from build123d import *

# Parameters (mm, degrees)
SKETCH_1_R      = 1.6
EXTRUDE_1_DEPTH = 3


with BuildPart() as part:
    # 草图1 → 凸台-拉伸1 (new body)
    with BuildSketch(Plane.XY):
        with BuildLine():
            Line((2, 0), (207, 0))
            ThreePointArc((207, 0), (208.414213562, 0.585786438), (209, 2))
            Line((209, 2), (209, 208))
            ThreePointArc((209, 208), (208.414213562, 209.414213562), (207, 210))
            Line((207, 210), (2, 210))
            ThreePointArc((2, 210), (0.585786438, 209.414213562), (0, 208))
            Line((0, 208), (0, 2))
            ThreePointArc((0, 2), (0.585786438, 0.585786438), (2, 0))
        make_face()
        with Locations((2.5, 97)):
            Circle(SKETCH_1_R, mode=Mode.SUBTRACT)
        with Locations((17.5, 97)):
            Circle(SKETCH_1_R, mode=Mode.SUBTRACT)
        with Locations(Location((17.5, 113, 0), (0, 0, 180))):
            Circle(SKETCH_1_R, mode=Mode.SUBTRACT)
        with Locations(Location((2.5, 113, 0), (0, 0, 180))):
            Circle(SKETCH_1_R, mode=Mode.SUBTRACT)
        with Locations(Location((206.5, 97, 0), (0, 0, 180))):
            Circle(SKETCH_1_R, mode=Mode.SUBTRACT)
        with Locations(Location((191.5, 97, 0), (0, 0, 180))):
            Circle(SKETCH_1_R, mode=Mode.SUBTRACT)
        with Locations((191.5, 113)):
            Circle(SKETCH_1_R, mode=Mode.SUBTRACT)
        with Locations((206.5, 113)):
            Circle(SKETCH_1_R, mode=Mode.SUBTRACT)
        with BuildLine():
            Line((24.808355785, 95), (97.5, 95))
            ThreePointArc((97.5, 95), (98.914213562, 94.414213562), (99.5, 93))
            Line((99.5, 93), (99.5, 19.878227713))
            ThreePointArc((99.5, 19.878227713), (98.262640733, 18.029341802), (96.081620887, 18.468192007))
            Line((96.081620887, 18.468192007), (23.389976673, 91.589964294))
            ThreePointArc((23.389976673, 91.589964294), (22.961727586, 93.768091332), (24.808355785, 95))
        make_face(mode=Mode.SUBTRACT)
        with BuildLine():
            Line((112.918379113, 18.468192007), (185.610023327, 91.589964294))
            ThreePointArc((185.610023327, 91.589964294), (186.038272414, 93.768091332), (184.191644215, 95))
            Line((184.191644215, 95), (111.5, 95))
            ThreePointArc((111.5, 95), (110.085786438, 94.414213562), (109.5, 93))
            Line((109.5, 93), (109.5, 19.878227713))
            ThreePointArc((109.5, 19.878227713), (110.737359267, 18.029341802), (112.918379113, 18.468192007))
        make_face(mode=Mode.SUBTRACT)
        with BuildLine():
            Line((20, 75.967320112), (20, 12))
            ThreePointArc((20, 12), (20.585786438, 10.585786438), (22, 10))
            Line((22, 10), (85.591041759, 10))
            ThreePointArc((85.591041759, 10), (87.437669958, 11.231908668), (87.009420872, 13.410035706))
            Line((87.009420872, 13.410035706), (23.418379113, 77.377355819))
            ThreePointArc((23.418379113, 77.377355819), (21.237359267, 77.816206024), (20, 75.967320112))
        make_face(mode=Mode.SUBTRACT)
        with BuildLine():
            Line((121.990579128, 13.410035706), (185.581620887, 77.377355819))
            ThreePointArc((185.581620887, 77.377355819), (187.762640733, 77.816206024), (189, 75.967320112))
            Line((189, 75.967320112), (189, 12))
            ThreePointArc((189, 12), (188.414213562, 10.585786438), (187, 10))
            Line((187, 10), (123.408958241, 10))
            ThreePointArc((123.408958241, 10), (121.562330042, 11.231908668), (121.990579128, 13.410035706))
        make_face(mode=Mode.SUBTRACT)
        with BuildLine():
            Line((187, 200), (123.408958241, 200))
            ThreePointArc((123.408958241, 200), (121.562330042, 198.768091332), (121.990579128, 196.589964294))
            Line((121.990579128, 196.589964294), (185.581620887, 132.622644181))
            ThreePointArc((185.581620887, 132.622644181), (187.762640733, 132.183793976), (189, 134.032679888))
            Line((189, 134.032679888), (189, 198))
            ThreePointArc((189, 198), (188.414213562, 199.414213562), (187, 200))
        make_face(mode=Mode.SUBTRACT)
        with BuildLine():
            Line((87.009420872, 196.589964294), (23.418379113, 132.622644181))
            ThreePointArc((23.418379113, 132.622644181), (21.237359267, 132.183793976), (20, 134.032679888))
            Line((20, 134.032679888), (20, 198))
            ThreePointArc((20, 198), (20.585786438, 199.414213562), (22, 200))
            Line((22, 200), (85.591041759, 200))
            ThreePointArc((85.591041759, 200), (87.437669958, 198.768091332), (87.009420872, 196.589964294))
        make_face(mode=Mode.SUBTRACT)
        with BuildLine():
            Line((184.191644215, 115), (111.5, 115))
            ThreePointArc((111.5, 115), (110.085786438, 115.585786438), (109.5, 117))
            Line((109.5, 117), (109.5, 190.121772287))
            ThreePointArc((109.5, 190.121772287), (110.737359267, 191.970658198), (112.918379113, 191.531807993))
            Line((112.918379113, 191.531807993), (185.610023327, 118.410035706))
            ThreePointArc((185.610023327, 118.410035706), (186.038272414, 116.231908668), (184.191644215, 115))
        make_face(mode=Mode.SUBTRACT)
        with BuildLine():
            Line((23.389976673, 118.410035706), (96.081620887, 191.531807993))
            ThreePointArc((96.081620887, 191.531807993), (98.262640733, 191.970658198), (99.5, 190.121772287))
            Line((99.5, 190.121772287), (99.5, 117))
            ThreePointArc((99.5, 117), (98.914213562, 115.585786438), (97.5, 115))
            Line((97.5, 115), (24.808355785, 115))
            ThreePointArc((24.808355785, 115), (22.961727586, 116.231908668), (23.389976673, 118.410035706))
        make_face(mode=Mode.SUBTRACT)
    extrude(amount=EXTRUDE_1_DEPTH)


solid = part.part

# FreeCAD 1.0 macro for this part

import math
import FreeCAD as App
import Part
import Sketcher

doc = App.newDocument("Part")
body = doc.addObject("PartDesign::Body", "Body")

# Sketch on XY plane
sketch1 = body.newObject("Sketcher::SketchObject", "Sketch")
sketch1.AttachmentSupport = (doc.getObject("XY_Plane"), [""])
sketch1.MapMode = "FlatFace"
sketch1.addGeometry([
    Part.LineSegment(App.Vector(2, 0, 0), App.Vector(207, 0, 0)),  # 0
    Part.ArcOfCircle(Part.Circle(App.Vector(207, 2, 0), App.Vector(0, 0, 1), 2), math.radians(-90), math.radians(0)),  # 1
    Part.LineSegment(App.Vector(209, 2, 0), App.Vector(209, 208, 0)),  # 2
    Part.ArcOfCircle(Part.Circle(App.Vector(207, 208, 0), App.Vector(0, 0, 1), 2), math.radians(0), math.radians(90)),  # 3
    Part.LineSegment(App.Vector(207, 210, 0), App.Vector(2, 210, 0)),  # 4
    Part.ArcOfCircle(Part.Circle(App.Vector(2, 208, 0), App.Vector(0, 0, 1), 2), math.radians(90), math.radians(180)),  # 5
    Part.LineSegment(App.Vector(0, 208, 0), App.Vector(0, 2, 0)),  # 6
    Part.ArcOfCircle(Part.Circle(App.Vector(2, 2, 0), App.Vector(0, 0, 1), 2), math.radians(-180), math.radians(-90)),  # 7
    Part.LineSegment(App.Vector(20, 12, 0), App.Vector(20, 75.96732, 0)),  # 8
    Part.ArcOfCircle(Part.Circle(App.Vector(22, 75.96732, 0), App.Vector(0, 0, 1), 2), math.radians(44.830986), math.radians(180)),  # 9
    Part.LineSegment(App.Vector(23.418379, 77.377356, 0), App.Vector(87.009421, 13.410036, 0)),  # 10
    Part.ArcOfCircle(Part.Circle(App.Vector(85.591042, 12, 0), App.Vector(0, 0, 1), 2), math.radians(-90), math.radians(44.830986)),  # 11
    Part.LineSegment(App.Vector(85.591042, 10, 0), App.Vector(22, 10, 0)),  # 12
    Part.ArcOfCircle(Part.Circle(App.Vector(22, 12, 0), App.Vector(0, 0, 1), 2), math.radians(-180), math.radians(-90)),  # 13
    Part.ArcOfCircle(Part.Circle(App.Vector(24.808356, 93, 0), App.Vector(0, 0, 1), 2), math.radians(90), math.radians(224.830986)),  # 14
    Part.LineSegment(App.Vector(24.808356, 95, 0), App.Vector(97.5, 95, 0)),  # 15
    Part.ArcOfCircle(Part.Circle(App.Vector(97.5, 93, 0), App.Vector(0, 0, 1), 2), math.radians(0), math.radians(90)),  # 16
    Part.LineSegment(App.Vector(99.5, 93, 0), App.Vector(99.5, 19.878228, 0)),  # 17
    Part.ArcOfCircle(Part.Circle(App.Vector(97.5, 19.878228, 0), App.Vector(0, 0, 1), 2), math.radians(-135.169014), math.radians(0)),  # 18
    Part.LineSegment(App.Vector(96.081621, 18.468192, 0), App.Vector(23.389977, 91.589964, 0)),  # 19
    Part.Circle(App.Vector(2.5, 97, 0), App.Vector(0, 0, 1), 1.6),  # 20
    Part.Circle(App.Vector(17.5, 97, 0), App.Vector(0, 0, 1), 1.6),  # 21
    Part.ArcOfCircle(Part.Circle(App.Vector(123.408958, 12, 0), App.Vector(0, 0, 1), 2), math.radians(135.169014), math.radians(270)),  # 22
    Part.LineSegment(App.Vector(121.990579, 13.410036, 0), App.Vector(185.581621, 77.377356, 0)),  # 23
    Part.ArcOfCircle(Part.Circle(App.Vector(187, 75.96732, 0), App.Vector(0, 0, 1), 2), math.radians(0), math.radians(135.169014)),  # 24
    Part.LineSegment(App.Vector(189, 75.96732, 0), App.Vector(189, 12, 0)),  # 25
    Part.ArcOfCircle(Part.Circle(App.Vector(187, 12, 0), App.Vector(0, 0, 1), 2), math.radians(-90), math.radians(0)),  # 26
    Part.LineSegment(App.Vector(187, 10, 0), App.Vector(123.408958, 10, 0)),  # 27
    Part.LineSegment(App.Vector(185.610023, 91.589964, 0), App.Vector(112.918379, 18.468192, 0)),  # 28
    Part.ArcOfCircle(Part.Circle(App.Vector(111.5, 19.878228, 0), App.Vector(0, 0, 1), 2), math.radians(180), math.radians(315.169014)),  # 29
    Part.LineSegment(App.Vector(109.5, 19.878228, 0), App.Vector(109.5, 93, 0)),  # 30
    Part.ArcOfCircle(Part.Circle(App.Vector(111.5, 93, 0), App.Vector(0, 0, 1), 2), math.radians(90), math.radians(180)),  # 31
    Part.LineSegment(App.Vector(111.5, 95, 0), App.Vector(184.191644, 95, 0)),  # 32
    Part.ArcOfCircle(Part.Circle(App.Vector(184.191644, 93, 0), App.Vector(0, 0, 1), 2), math.radians(-44.830986), math.radians(90)),  # 33
    Part.Circle(App.Vector(191.5, 97, 0), App.Vector(0, 0, 1), 1.6),  # 34
    Part.Circle(App.Vector(206.5, 97, 0), App.Vector(0, 0, 1), 1.6),  # 35
    Part.Circle(App.Vector(2.5, 113, 0), App.Vector(0, 0, 1), 1.6),  # 36
    Part.Circle(App.Vector(17.5, 113, 0), App.Vector(0, 0, 1), 1.6),  # 37
    Part.ArcOfCircle(Part.Circle(App.Vector(24.808356, 117, 0), App.Vector(0, 0, 1), 2), math.radians(135.169014), math.radians(270)),  # 38
    Part.LineSegment(App.Vector(23.389977, 118.410036, 0), App.Vector(96.081621, 191.531808, 0)),  # 39
    Part.ArcOfCircle(Part.Circle(App.Vector(97.5, 190.121772, 0), App.Vector(0, 0, 1), 2), math.radians(0), math.radians(135.169014)),  # 40
    Part.LineSegment(App.Vector(99.5, 190.121772, 0), App.Vector(99.5, 117, 0)),  # 41
    Part.ArcOfCircle(Part.Circle(App.Vector(97.5, 117, 0), App.Vector(0, 0, 1), 2), math.radians(-90), math.radians(0)),  # 42
    Part.LineSegment(App.Vector(97.5, 115, 0), App.Vector(24.808356, 115, 0)),  # 43
    Part.ArcOfCircle(Part.Circle(App.Vector(85.591042, 198, 0), App.Vector(0, 0, 1), 2), math.radians(-44.830986), math.radians(90)),  # 44
    Part.LineSegment(App.Vector(87.009421, 196.589964, 0), App.Vector(23.418379, 132.622644, 0)),  # 45
    Part.ArcOfCircle(Part.Circle(App.Vector(22, 134.03268, 0), App.Vector(0, 0, 1), 2), math.radians(180), math.radians(315.169014)),  # 46
    Part.LineSegment(App.Vector(20, 134.03268, 0), App.Vector(20, 198, 0)),  # 47
    Part.ArcOfCircle(Part.Circle(App.Vector(22, 198, 0), App.Vector(0, 0, 1), 2), math.radians(90), math.radians(180)),  # 48
    Part.LineSegment(App.Vector(22, 200, 0), App.Vector(85.591042, 200, 0)),  # 49
    Part.Circle(App.Vector(191.5, 113, 0), App.Vector(0, 0, 1), 1.6),  # 50
    Part.Circle(App.Vector(206.5, 113, 0), App.Vector(0, 0, 1), 1.6),  # 51
    Part.ArcOfCircle(Part.Circle(App.Vector(184.191644, 117, 0), App.Vector(0, 0, 1), 2), math.radians(-90), math.radians(44.830986)),  # 52
    Part.LineSegment(App.Vector(184.191644, 115, 0), App.Vector(111.5, 115, 0)),  # 53
    Part.ArcOfCircle(Part.Circle(App.Vector(111.5, 117, 0), App.Vector(0, 0, 1), 2), math.radians(-180), math.radians(-90)),  # 54
    Part.LineSegment(App.Vector(109.5, 117, 0), App.Vector(109.5, 190.121772, 0)),  # 55
    Part.ArcOfCircle(Part.Circle(App.Vector(111.5, 190.121772, 0), App.Vector(0, 0, 1), 2), math.radians(44.830986), math.radians(180)),  # 56
    Part.LineSegment(App.Vector(112.918379, 191.531808, 0), App.Vector(185.610023, 118.410036, 0)),  # 57
    Part.LineSegment(App.Vector(123.408958, 200, 0), App.Vector(187, 200, 0)),  # 58
    Part.ArcOfCircle(Part.Circle(App.Vector(187, 198, 0), App.Vector(0, 0, 1), 2), math.radians(0), math.radians(90)),  # 59
    Part.LineSegment(App.Vector(189, 198, 0), App.Vector(189, 134.03268, 0)),  # 60
    Part.ArcOfCircle(Part.Circle(App.Vector(187, 134.03268, 0), App.Vector(0, 0, 1), 2), math.radians(-135.169014), math.radians(0)),  # 61
    Part.LineSegment(App.Vector(185.581621, 132.622644, 0), App.Vector(121.990579, 196.589964, 0)),  # 62
    Part.ArcOfCircle(Part.Circle(App.Vector(123.408958, 198, 0), App.Vector(0, 0, 1), 2), math.radians(90), math.radians(224.830986)),  # 63
], False)
sketch1.addConstraint([
    Sketcher.Constraint("Tangent", 0, 2, 1, 1),
    Sketcher.Constraint("Tangent", 1, 2, 2, 1),
    Sketcher.Constraint("Tangent", 2, 2, 3, 1),
    Sketcher.Constraint("Tangent", 3, 2, 4, 1),
    Sketcher.Constraint("Tangent", 4, 2, 5, 1),
    Sketcher.Constraint("Tangent", 5, 2, 6, 1),
    Sketcher.Constraint("Tangent", 6, 2, 7, 1),
    Sketcher.Constraint("Tangent", 7, 2, 0, 1),
    Sketcher.Constraint("Tangent", 8, 2, 9, 2),
    Sketcher.Constraint("Tangent", 9, 1, 10, 1),
    Sketcher.Constraint("Tangent", 10, 2, 11, 2),
    Sketcher.Constraint("Tangent", 11, 1, 12, 1),
    Sketcher.Constraint("Tangent", 12, 2, 13, 2),
    Sketcher.Constraint("Tangent", 13, 1, 8, 1),
    Sketcher.Constraint("Tangent", 14, 1, 15, 1),
    Sketcher.Constraint("Tangent", 15, 2, 16, 2),
    Sketcher.Constraint("Tangent", 16, 1, 17, 1),
    Sketcher.Constraint("Tangent", 17, 2, 18, 2),
    Sketcher.Constraint("Tangent", 18, 1, 19, 1),
    Sketcher.Constraint("Tangent", 19, 2, 14, 2),
    Sketcher.Constraint("Tangent", 22, 1, 23, 1),
    Sketcher.Constraint("Tangent", 23, 2, 24, 2),
    Sketcher.Constraint("Tangent", 24, 1, 25, 1),
    Sketcher.Constraint("Tangent", 25, 2, 26, 2),
    Sketcher.Constraint("Tangent", 26, 1, 27, 1),
    Sketcher.Constraint("Tangent", 27, 2, 22, 2),
    Sketcher.Constraint("Tangent", 28, 2, 29, 2),
    Sketcher.Constraint("Tangent", 29, 1, 30, 1),
    Sketcher.Constraint("Tangent", 30, 2, 31, 2),
    Sketcher.Constraint("Tangent", 31, 1, 32, 1),
    Sketcher.Constraint("Tangent", 32, 2, 33, 2),
    Sketcher.Constraint("Tangent", 33, 1, 28, 1),
    Sketcher.Constraint("Tangent", 38, 1, 39, 1),
    Sketcher.Constraint("Tangent", 39, 2, 40, 2),
    Sketcher.Constraint("Tangent", 40, 1, 41, 1),
    Sketcher.Constraint("Tangent", 41, 2, 42, 2),
    Sketcher.Constraint("Tangent", 42, 1, 43, 1),
    Sketcher.Constraint("Tangent", 43, 2, 38, 2),
    Sketcher.Constraint("Tangent", 44, 1, 45, 1),
    Sketcher.Constraint("Tangent", 45, 2, 46, 2),
    Sketcher.Constraint("Tangent", 46, 1, 47, 1),
    Sketcher.Constraint("Tangent", 47, 2, 48, 2),
    Sketcher.Constraint("Tangent", 48, 1, 49, 1),
    Sketcher.Constraint("Tangent", 49, 2, 44, 2),
    Sketcher.Constraint("Tangent", 52, 1, 53, 1),
    Sketcher.Constraint("Tangent", 53, 2, 54, 2),
    Sketcher.Constraint("Tangent", 54, 1, 55, 1),
    Sketcher.Constraint("Tangent", 55, 2, 56, 2),
    Sketcher.Constraint("Tangent", 56, 1, 57, 1),
    Sketcher.Constraint("Tangent", 57, 2, 52, 2),
    Sketcher.Constraint("Tangent", 58, 2, 59, 2),
    Sketcher.Constraint("Tangent", 59, 1, 60, 1),
    Sketcher.Constraint("Tangent", 60, 2, 61, 2),
    Sketcher.Constraint("Tangent", 61, 1, 62, 1),
    Sketcher.Constraint("Tangent", 62, 2, 63, 2),
    Sketcher.Constraint("Tangent", 63, 1, 58, 1),
    Sketcher.Constraint("Horizontal", 0),
    Sketcher.Constraint("Vertical", 2),
    Sketcher.Constraint("Horizontal", 4),
    Sketcher.Constraint("Vertical", 6),
    Sketcher.Constraint("Vertical", 8),
    Sketcher.Constraint("Horizontal", 12),
    Sketcher.Constraint("Horizontal", 15),
    Sketcher.Constraint("Vertical", 17),
    Sketcher.Constraint("Vertical", 25),
    Sketcher.Constraint("Horizontal", 27),
    Sketcher.Constraint("Vertical", 30),
    Sketcher.Constraint("Horizontal", 32),
    Sketcher.Constraint("Vertical", 41),
    Sketcher.Constraint("Horizontal", 43),
    Sketcher.Constraint("Vertical", 47),
    Sketcher.Constraint("Horizontal", 49),
    Sketcher.Constraint("Horizontal", 53),
    Sketcher.Constraint("Vertical", 55),
    Sketcher.Constraint("Horizontal", 58),
    Sketcher.Constraint("Vertical", 60),
    Sketcher.Constraint("Equal", 1, 3),
    Sketcher.Constraint("Equal", 3, 5),
    Sketcher.Constraint("Equal", 5, 7),
    Sketcher.Constraint("Equal", 7, 9),
    Sketcher.Constraint("Equal", 9, 11),
    Sketcher.Constraint("Equal", 11, 13),
    Sketcher.Constraint("Equal", 13, 14),
    Sketcher.Constraint("Equal", 14, 16),
    Sketcher.Constraint("Equal", 16, 18),
    Sketcher.Constraint("Equal", 20, 21),
    Sketcher.Constraint("Equal", 18, 22),
    Sketcher.Constraint("Equal", 22, 24),
    Sketcher.Constraint("Equal", 24, 26),
    Sketcher.Constraint("Equal", 26, 29),
    Sketcher.Constraint("Equal", 29, 31),
    Sketcher.Constraint("Equal", 31, 33),
    Sketcher.Constraint("Equal", 21, 34),
    Sketcher.Constraint("Equal", 34, 35),
    Sketcher.Constraint("Equal", 35, 36),
    Sketcher.Constraint("Equal", 36, 37),
    Sketcher.Constraint("Equal", 33, 38),
    Sketcher.Constraint("Equal", 38, 40),
    Sketcher.Constraint("Equal", 40, 42),
    Sketcher.Constraint("Equal", 42, 44),
    Sketcher.Constraint("Equal", 44, 46),
    Sketcher.Constraint("Equal", 46, 48),
    Sketcher.Constraint("Equal", 37, 50),
    Sketcher.Constraint("Equal", 50, 51),
    Sketcher.Constraint("Equal", 48, 52),
    Sketcher.Constraint("Equal", 52, 54),
    Sketcher.Constraint("Equal", 54, 56),
    Sketcher.Constraint("Equal", 56, 59),
    Sketcher.Constraint("Equal", 59, 61),
    Sketcher.Constraint("Equal", 61, 63),
    Sketcher.Constraint("PointOnObject", 0, 2, -1),
    Sketcher.Constraint("PointOnObject", 5, 2, -2),
    Sketcher.Constraint("Parallel", 10, 19),
    Sketcher.Constraint("Parallel", 23, 28),
    Sketcher.Constraint("Parallel", 28, 39),
    Sketcher.Constraint("Parallel", 39, 45),
    Sketcher.Constraint("Parallel", 19, 57),
    Sketcher.Constraint("Parallel", 57, 62),
    Sketcher.Constraint("Horizontal", 20, 3, 21, 3),
    Sketcher.Constraint("Horizontal", 13, 3, 22, 3),
    Sketcher.Constraint("Horizontal", 9, 3, 24, 3),
    Sketcher.Constraint("Horizontal", 18, 3, 29, 3),
    Sketcher.Constraint("Horizontal", 16, 3, 31, 3),
    Sketcher.Constraint("Horizontal", 21, 3, 34, 3),
    Sketcher.Constraint("Horizontal", 34, 3, 35, 3),
    Sketcher.Constraint("Horizontal", 36, 3, 37, 3),
    Sketcher.Constraint("Horizontal", 37, 3, 50, 3),
    Sketcher.Constraint("Horizontal", 50, 3, 51, 3),
    Sketcher.Constraint("Horizontal", 42, 3, 52, 3),
    Sketcher.Constraint("Horizontal", 40, 3, 56, 3),
    Sketcher.Constraint("Horizontal", 48, 3, 59, 3),
    Sketcher.Constraint("Horizontal", 46, 3, 61, 3),
    Sketcher.Constraint("Horizontal", 10, 2, 22, 1),
    Sketcher.Constraint("Vertical", 20, 3, 36, 3),
    Sketcher.Constraint("Vertical", 21, 3, 37, 3),
    Sketcher.Constraint("Vertical", 14, 3, 38, 3),
    Sketcher.Constraint("Vertical", 18, 3, 40, 3),
    Sketcher.Constraint("Vertical", 11, 3, 44, 3),
    Sketcher.Constraint("Vertical", 13, 3, 46, 3),
    Sketcher.Constraint("Vertical", 34, 3, 50, 3),
    Sketcher.Constraint("Vertical", 35, 3, 51, 3),
    Sketcher.Constraint("Vertical", 33, 3, 52, 3),
    Sketcher.Constraint("Vertical", 26, 3, 59, 3),
    Sketcher.Constraint("Radius", 1, 2.0),
    Sketcher.Constraint("Diameter", 20, 3.2),
    Sketcher.Constraint("DistanceX", 0, 1, 0, 2, 205.0),
    Sketcher.Constraint("DistanceY", 2, 1, 2, 2, 206.0),
    Sketcher.Constraint("DistanceX", -1, 1, 9, 3, 22.0),
    Sketcher.Constraint("DistanceY", -1, 1, 11, 3, 12.0),
    Sketcher.Constraint("DistanceY", -1, 1, 14, 3, 93.0),
    Sketcher.Constraint("DistanceY", -1, 1, 20, 3, 97.0),
    Sketcher.Constraint("DistanceX", -1, 1, 24, 3, 187.0),
    Sketcher.Constraint("DistanceY", -1, 1, 36, 3, 113.0),
    Sketcher.Constraint("DistanceY", -1, 1, 38, 3, 117.0),
    Sketcher.Constraint("DistanceY", -1, 1, 44, 3, 198.0),
    Sketcher.Constraint("DistanceX", -1, 1, 16, 3, 97.5),
    Sketcher.Constraint("DistanceX", -1, 1, 20, 3, 2.5),
    Sketcher.Constraint("DistanceX", -1, 1, 21, 3, 17.5),
    Sketcher.Constraint("DistanceX", -1, 1, 29, 3, 111.5),
    Sketcher.Constraint("DistanceX", -1, 1, 34, 3, 191.5),
    Sketcher.Constraint("DistanceX", -1, 1, 35, 3, 206.5),
    Sketcher.Constraint("DistanceX", 12, 2, 12, 1, 63.591042),
    Sketcher.Constraint("DistanceY", 8, 1, 8, 2, 63.96732),
    Sketcher.Constraint("DistanceX", 15, 1, 15, 2, 72.691644),
])
pad1 = body.newObject("PartDesign::Pad", "Pad")
pad1.Profile = sketch1
pad1.Length = 3

doc.recompute()
